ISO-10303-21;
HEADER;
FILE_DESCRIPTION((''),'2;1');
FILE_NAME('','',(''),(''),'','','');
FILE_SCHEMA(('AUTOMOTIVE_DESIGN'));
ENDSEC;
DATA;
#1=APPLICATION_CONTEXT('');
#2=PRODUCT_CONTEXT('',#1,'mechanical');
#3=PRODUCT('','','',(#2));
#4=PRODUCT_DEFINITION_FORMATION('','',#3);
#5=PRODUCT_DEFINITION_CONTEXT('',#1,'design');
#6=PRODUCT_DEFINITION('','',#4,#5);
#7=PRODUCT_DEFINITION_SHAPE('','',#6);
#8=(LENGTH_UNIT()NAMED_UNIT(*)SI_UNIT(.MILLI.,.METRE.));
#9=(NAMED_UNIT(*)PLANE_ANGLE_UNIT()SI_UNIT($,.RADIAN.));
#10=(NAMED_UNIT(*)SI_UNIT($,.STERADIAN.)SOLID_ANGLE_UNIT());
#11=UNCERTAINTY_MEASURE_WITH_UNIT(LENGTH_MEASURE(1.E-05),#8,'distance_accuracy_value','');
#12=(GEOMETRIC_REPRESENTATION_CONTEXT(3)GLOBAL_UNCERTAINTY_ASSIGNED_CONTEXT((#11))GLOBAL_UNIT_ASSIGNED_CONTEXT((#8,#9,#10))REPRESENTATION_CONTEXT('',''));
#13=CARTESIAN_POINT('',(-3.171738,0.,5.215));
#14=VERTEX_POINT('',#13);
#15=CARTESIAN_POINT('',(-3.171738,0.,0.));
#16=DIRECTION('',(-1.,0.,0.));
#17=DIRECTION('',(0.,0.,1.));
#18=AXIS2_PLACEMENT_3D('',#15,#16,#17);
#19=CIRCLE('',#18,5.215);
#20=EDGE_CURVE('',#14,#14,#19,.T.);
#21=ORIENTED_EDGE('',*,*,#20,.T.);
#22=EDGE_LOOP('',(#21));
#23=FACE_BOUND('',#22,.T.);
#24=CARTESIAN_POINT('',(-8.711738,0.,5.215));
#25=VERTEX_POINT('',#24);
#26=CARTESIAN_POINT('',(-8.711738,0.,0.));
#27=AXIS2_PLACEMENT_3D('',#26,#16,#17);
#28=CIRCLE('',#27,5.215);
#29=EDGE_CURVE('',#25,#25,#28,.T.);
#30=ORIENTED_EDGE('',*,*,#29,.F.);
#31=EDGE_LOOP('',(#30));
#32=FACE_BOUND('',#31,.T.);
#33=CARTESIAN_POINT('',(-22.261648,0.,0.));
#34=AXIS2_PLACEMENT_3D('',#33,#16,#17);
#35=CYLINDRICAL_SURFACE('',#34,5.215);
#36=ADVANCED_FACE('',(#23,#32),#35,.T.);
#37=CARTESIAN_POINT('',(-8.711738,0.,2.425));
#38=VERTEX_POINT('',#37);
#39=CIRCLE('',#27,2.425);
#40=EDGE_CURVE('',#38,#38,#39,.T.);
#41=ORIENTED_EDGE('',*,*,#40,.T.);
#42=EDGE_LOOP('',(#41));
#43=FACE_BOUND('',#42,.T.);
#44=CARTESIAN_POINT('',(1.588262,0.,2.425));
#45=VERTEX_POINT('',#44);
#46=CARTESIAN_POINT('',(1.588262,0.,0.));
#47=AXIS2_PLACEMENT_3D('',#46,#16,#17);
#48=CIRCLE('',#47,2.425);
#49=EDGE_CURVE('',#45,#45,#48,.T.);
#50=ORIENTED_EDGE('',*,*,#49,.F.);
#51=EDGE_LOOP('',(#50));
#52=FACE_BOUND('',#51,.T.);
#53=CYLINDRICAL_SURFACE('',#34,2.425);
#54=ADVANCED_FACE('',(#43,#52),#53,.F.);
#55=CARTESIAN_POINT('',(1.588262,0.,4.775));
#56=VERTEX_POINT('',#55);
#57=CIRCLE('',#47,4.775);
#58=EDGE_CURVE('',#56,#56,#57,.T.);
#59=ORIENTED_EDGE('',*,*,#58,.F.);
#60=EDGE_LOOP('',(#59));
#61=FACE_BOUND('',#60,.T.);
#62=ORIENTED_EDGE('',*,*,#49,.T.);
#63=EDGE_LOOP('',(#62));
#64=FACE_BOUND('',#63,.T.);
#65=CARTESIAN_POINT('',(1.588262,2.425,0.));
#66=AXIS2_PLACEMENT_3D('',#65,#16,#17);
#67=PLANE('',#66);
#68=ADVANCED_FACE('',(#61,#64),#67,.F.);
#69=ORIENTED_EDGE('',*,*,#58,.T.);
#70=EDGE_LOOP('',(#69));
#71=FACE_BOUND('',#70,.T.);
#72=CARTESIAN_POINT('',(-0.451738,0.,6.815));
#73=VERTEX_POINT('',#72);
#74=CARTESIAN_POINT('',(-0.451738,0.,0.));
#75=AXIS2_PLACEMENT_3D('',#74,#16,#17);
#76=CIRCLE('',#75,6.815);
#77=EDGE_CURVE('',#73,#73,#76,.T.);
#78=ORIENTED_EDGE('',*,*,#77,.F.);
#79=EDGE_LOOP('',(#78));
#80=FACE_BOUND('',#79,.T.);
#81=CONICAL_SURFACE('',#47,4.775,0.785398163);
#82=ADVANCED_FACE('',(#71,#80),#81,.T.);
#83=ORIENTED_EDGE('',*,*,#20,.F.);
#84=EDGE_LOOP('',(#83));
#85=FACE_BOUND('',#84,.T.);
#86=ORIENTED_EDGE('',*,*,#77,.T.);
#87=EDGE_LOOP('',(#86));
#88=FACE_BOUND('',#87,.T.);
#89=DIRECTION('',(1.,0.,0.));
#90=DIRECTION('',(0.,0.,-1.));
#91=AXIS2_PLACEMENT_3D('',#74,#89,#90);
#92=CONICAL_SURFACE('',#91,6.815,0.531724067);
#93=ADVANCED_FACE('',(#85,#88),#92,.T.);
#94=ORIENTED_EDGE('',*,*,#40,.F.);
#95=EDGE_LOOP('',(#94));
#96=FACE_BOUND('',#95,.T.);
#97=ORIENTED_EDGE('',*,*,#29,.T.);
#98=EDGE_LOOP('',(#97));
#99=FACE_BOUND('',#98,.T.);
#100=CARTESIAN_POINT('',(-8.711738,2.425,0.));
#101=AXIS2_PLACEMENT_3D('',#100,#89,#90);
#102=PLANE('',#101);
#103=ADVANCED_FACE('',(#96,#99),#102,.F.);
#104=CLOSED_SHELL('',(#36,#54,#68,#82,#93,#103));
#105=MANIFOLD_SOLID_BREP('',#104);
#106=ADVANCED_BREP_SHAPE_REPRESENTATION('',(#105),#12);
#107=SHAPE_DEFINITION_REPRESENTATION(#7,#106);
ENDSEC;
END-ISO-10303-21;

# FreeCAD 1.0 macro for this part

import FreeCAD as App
import Part
import Sketcher

V = App.Vector
Q = App.Units.Quantity


def add_polygon(sketch, points):
    """Adds a closed chain of lines whose ends are joined by coincident constraints."""
    first, n = sketch.GeometryCount, len(points)
    for a, b in zip(points, points[1:] + points[:1]):
        sketch.addGeometry(Part.LineSegment(App.Vector(*a, 0), App.Vector(*b, 0)), False)
    for i in range(n):
        sketch.addConstraint(Sketcher.Constraint("Coincident", first + i, 2, first + (i + 1) % n, 1))

doc = App.newDocument("Part")
body = doc.addObject("PartDesign::Body", "Body")

sketch1 = body.newObject("Sketcher::SketchObject", "Sketch")
sketch1.AttachmentSupport = (doc.getObject("XY_Plane"), [""])
sketch1.MapMode = "FlatFace"
add_polygon(sketch1, [(1.6, 4.8), (-0.5, 6.8), (-3.2, 5.2), (-8.7, 5.2), (-8.7, 2.4), (1.6, 2.4)])
sketch1.addConstraint([
    Sketcher.Constraint("Horizontal", 2),
    Sketcher.Constraint("Vertical", 3),
    Sketcher.Constraint("Horizontal", 4),
    Sketcher.Constraint("Vertical", 5),
    Sketcher.Constraint("Angle", 0, Q("135 deg")),
    Sketcher.Constraint("DistanceX", 4, 1, 4, 2, Q("10.3 mm")),
    Sketcher.Constraint("DistanceX", 2, 2, 2, 1, Q("5.54 mm")),
    Sketcher.Constraint("DistanceY", 3, 2, 3, 1, Q("2.79 mm")),
    Sketcher.Constraint("DistanceY", 5, 1, 5, 2, Q("2.35 mm")),
    Sketcher.Constraint("DistanceY", 1, 2, 0, 2, Q("1.6 mm")),
    Sketcher.Constraint("DistanceY", -1, 1, 0, 2, Q("6.815 mm")),
    Sketcher.Constraint("DistanceX", 0, 2, -1, 1, Q("0.451738 mm")),
])
revolution = body.newObject("PartDesign::Revolution", "Revolution")
revolution.Profile = sketch1
revolution.ReferenceAxis = (sketch1, ["H_Axis"])
revolution.Angle = 360

doc.recompute()
